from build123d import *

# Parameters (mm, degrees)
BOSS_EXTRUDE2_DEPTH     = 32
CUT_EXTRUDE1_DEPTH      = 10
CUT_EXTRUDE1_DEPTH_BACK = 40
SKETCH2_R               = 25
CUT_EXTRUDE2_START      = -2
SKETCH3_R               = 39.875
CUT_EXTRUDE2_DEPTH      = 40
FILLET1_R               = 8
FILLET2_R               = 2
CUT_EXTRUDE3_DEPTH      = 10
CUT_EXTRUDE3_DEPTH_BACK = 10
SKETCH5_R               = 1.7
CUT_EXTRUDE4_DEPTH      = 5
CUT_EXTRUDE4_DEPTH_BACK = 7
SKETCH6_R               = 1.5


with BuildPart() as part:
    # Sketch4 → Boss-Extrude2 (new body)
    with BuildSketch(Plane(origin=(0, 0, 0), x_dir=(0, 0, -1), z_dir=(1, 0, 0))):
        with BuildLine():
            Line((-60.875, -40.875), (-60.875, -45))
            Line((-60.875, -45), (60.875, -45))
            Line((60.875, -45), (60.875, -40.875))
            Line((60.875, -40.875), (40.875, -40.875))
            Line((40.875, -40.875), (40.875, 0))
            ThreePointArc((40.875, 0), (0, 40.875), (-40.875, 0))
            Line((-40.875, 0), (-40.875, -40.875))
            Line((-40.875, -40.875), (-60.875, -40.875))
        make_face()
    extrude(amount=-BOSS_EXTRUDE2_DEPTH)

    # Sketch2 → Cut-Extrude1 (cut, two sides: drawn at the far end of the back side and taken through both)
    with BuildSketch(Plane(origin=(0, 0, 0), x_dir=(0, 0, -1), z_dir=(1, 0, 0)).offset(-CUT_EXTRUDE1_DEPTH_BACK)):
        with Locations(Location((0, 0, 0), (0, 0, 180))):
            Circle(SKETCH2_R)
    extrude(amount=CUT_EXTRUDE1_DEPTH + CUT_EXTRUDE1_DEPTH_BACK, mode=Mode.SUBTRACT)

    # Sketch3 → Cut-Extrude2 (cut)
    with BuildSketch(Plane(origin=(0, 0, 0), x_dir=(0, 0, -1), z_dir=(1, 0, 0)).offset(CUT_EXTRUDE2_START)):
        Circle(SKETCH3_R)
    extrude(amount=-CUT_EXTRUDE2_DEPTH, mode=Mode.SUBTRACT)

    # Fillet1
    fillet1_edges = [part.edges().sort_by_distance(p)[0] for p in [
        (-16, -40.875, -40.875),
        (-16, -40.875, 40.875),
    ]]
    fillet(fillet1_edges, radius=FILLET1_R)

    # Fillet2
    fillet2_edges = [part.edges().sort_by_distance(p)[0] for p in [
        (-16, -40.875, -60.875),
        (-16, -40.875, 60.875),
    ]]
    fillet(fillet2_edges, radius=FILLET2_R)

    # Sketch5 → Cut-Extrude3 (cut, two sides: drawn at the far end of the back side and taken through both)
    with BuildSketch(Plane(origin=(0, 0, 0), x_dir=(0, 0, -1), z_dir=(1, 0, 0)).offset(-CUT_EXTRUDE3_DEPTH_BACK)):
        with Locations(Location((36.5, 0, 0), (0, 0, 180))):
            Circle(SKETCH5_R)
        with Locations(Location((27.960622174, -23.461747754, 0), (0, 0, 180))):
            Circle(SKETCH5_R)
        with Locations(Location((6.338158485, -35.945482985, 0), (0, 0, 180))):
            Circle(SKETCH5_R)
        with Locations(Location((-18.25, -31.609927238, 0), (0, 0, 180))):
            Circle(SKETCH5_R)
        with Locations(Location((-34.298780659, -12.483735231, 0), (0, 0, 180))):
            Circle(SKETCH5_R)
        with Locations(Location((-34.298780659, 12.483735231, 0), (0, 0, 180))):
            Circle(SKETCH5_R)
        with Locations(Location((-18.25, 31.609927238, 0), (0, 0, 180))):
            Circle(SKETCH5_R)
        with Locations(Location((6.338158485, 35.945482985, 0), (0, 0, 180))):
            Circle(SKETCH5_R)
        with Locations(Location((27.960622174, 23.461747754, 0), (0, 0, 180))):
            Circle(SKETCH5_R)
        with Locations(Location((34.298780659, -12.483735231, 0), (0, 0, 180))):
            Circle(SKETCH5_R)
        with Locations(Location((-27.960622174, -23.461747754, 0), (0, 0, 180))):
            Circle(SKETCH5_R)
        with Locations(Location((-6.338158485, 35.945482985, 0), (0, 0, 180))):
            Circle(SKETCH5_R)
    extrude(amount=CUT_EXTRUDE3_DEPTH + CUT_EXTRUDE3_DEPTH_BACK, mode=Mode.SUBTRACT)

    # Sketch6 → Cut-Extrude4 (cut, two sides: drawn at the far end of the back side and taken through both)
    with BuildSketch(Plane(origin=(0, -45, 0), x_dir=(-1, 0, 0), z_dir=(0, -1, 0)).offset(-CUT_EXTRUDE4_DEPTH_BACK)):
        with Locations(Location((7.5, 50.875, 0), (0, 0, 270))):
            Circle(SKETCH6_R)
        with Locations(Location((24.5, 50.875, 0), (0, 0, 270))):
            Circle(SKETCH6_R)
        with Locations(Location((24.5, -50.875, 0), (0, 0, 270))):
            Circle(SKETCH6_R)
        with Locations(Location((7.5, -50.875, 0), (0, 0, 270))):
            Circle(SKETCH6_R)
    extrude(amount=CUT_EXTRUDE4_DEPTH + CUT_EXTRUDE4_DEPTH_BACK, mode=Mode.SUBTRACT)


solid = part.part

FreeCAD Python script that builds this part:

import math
import FreeCAD as App
import Part
import Sketcher

V = App.Vector
Q = App.Units.Quantity


def edges_at(feature, points):
    """Names of the edges that pass closest to the given points."""
    edges = feature.Shape.Edges
    near = lambda p: min(range(len(edges)), key=lambda i: edges[i].distToShape(Part.Vertex(*p))[0])
    return sorted({f"Edge{near(p) + 1}" for p in points})

doc = App.newDocument("Part")
body = doc.addObject("PartDesign::Body", "Body")

# Sketch on YZ plane
sketch1 = body.newObject("Sketcher::SketchObject", "Sketch")
sketch1.AttachmentSupport = (doc.getObject("YZ_Plane"), [""])
sketch1.MapMode = "FlatFace"
sketch1.addGeometry([
    Part.LineSegment(V(-40.9, 60.9, 0), V(-45, 60.9, 0)),  # 0
    Part.LineSegment(V(-45, 60.9, 0), V(-45, -60.9, 0)),  # 1
    Part.LineSegment(V(-45, -60.9, 0), V(-40.9, -60.9, 0)),  # 2
    Part.LineSegment(V(-40.9, -60.9, 0), V(-40.9, -40.9, 0)),  # 3
    Part.LineSegment(V(-40.9, -40.9, 0), V(0, -40.9, 0)),  # 4
    Part.ArcOfCircle(Part.Circle(V(0, 0, 0), V(0, 0, 1), 40.9), math.radians(-90), math.radians(90)),  # 5
    Part.LineSegment(V(0, 40.9, 0), V(-40.9, 40.9, 0)),  # 6
    Part.LineSegment(V(-40.9, 40.9, 0), V(-40.9, 60.9, 0)),  # 7
], False)
sketch1.addConstraint([
    Sketcher.Constraint("Coincident", 0, 2, 1, 1),
    Sketcher.Constraint("Coincident", 1, 2, 2, 1),
    Sketcher.Constraint("Coincident", 2, 2, 3, 1),
    Sketcher.Constraint("Coincident", 3, 2, 4, 1),
    Sketcher.Constraint("Tangent", 4, 2, 5, 1),
    Sketcher.Constraint("Tangent", 5, 2, 6, 1),
    Sketcher.Constraint("Coincident", 6, 2, 7, 1),
    Sketcher.Constraint("Coincident", 7, 2, 0, 1),
    Sketcher.Constraint("Horizontal", 0),
    Sketcher.Constraint("Vertical", 1),
    Sketcher.Constraint("Horizontal", 2),
    Sketcher.Constraint("Vertical", 3),
    Sketcher.Constraint("Horizontal", 4),
    Sketcher.Constraint("Horizontal", 6),
    Sketcher.Constraint("Vertical", 7),
    Sketcher.Constraint("Coincident", 5, 3, -1, 1),
    Sketcher.Constraint("Symmetric", 2, 2, 7, 2, -1),
    Sketcher.Constraint("DistanceY", 3, 1, 3, 2, Q("20 mm")),
    Sketcher.Constraint("DistanceX", 0, 2, -1, 1, Q("45 mm")),
    Sketcher.Constraint("Radius", 5, Q("40.875 mm")),
    Sketcher.Constraint("DistanceX", 0, 2, 0, 1, Q("4.125 mm")),
])
pad1 = body.newObject("PartDesign::Pad", "Pad")
pad1.Profile = sketch1
pad1.Length = 32
pad1.Reversed = True

# Sketch on YZ plane
sketch2 = body.newObject("Sketcher::SketchObject", "Sketch001")
sketch2.AttachmentSupport = (doc.getObject("YZ_Plane"), [""])
sketch2.MapMode = "FlatFace"
sketch2.addGeometry(Part.Circle(V(0, 0, 0), V(0, 0, 1), 25), False)
sketch2.addConstraint([
    Sketcher.Constraint("Coincident", 0, 3, -1, 1),
    Sketcher.Constraint("Diameter", 0, Q("50 mm")),
])
pocket1 = body.newObject("PartDesign::Pocket", "Pocket")
pocket1.Profile = sketch2
pocket1.Type = "ThroughAll"
pocket1.Midplane = True

# Sketch on YZ plane
sketch3 = body.newObject("Sketcher::SketchObject", "Sketch002")
sketch3.AttachmentSupport = (doc.getObject("YZ_Plane"), [""])
sketch3.MapMode = "FlatFace"
sketch3.AttachmentOffset = App.Placement(V(0, 0, -2), App.Rotation())
sketch3.addGeometry(Part.Circle(V(0, 0, 0), V(0, 0, 1), 40), False)
sketch3.addConstraint([
    Sketcher.Constraint("Coincident", 0, 3, -1, 1),
    Sketcher.Constraint("Diameter", 0, Q("79.75 mm")),
])
pocket2 = body.newObject("PartDesign::Pocket", "Pocket001")
pocket2.Profile = sketch3
pocket2.Length = 40
doc.recompute()

fillet = body.newObject("PartDesign::Fillet", "Fillet")
fillet.Base = (pocket2, edges_at(pocket2, [(-16, -40.875, -40.875), (-16, -40.875, 40.875)]))
fillet.Radius = 8
doc.recompute()

fillet2 = body.newObject("PartDesign::Fillet", "Fillet001")
fillet2.Base = (fillet, edges_at(fillet, [(-16, -40.875, -60.875), (-16, -40.875, 60.875)]))
fillet2.Radius = 2

# Sketch on YZ plane
sketch4 = body.newObject("Sketcher::SketchObject", "Sketch003")
sketch4.AttachmentSupport = (doc.getObject("YZ_Plane"), [""])
sketch4.MapMode = "FlatFace"
sketch4.addGeometry([
    Part.Circle(V(0, -36.5, 0), V(0, 0, 1), 1.7),  # 0
    Part.Circle(V(-23.5, -28, 0), V(0, 0, 1), 1.7),  # 1
    Part.Circle(V(-35.9, -6.3, 0), V(0, 0, 1), 1.7),  # 2
    Part.Circle(V(-31.6, 18.2, 0), V(0, 0, 1), 1.7),  # 3
    Part.Circle(V(-12.5, 34.3, 0), V(0, 0, 1), 1.7),  # 4
    Part.Circle(V(12.5, 34.3, 0), V(0, 0, 1), 1.7),  # 5
    Part.Circle(V(31.6, 18.2, 0), V(0, 0, 1), 1.7),  # 6
    Part.Circle(V(35.9, -6.3, 0), V(0, 0, 1), 1.7),  # 7
    Part.Circle(V(23.5, -28, 0), V(0, 0, 1), 1.7),  # 8
    Part.Circle(V(-12.5, -34.3, 0), V(0, 0, 1), 1.7),  # 9
    Part.Circle(V(-23.5, 28, 0), V(0, 0, 1), 1.7),  # 10
    Part.Circle(V(35.9, 6.3, 0), V(0, 0, 1), 1.7),  # 11
], False)
sketch4.addConstraint([
    Sketcher.Constraint("Equal", 0, 1),
    Sketcher.Constraint("Equal", 1, 2),
    Sketcher.Constraint("Equal", 2, 3),
    Sketcher.Constraint("Equal", 3, 4),
    Sketcher.Constraint("Equal", 4, 5),
    Sketcher.Constraint("Equal", 5, 6),
    Sketcher.Constraint("Equal", 6, 7),
    Sketcher.Constraint("Equal", 7, 8),
    Sketcher.Constraint("Equal", 8, 9),
    Sketcher.Constraint("Equal", 9, 10),
    Sketcher.Constraint("Equal", 10, 11),
    Sketcher.Constraint("Symmetric", 5, 3, 9, 3, -1, 1),
    Sketcher.Constraint("Symmetric", 8, 3, 10, 3, -1, 1),
    Sketcher.Constraint("Symmetric", 2, 3, 11, 3, -1, 1),
    Sketcher.Constraint("Symmetric", 4, 3, 5, 3, -2),
    Sketcher.Constraint("Symmetric", 3, 3, 6, 3, -2),
    Sketcher.Constraint("Symmetric", 2, 3, 7, 3, -2),
    Sketcher.Constraint("Symmetric", 1, 3, 8, 3, -2),
    Sketcher.Constraint("PointOnObject", 0, 3, -2),
    Sketcher.Constraint("Diameter", 0, Q("3.4 mm")),
    Sketcher.Constraint("DistanceY", 0, 3, -1, 1, Q("36.5 mm")),
    Sketcher.Constraint("DistanceY", -1, 1, 3, 3, Q("18.25 mm")),
    Sketcher.Constraint("DistanceY", 2, 3, -1, 1, Q("6.338158 mm")),
    Sketcher.Constraint("DistanceY", -1, 1, 4, 3, Q("34.298781 mm")),
    Sketcher.Constraint("DistanceX", 3, 3, 1, 3, Q("8.148179 mm")),
    Sketcher.Constraint("DistanceX", 4, 3, 5, 3, Q("24.96747 mm")),
    Sketcher.Constraint("DistanceX", 2, 3, 5, 3, Q("48.429218 mm")),
    Sketcher.Constraint("DistanceX", 2, 3, 6, 3, Q("67.55541 mm")),
    Sketcher.Constraint("DistanceY", 9, 3, 1, 3, Q("6.338158 mm")),
])
pocket3 = body.newObject("PartDesign::Pocket", "Pocket002")
pocket3.Profile = sketch4
pocket3.Type = "ThroughAll"
pocket3.Midplane = True

# Sketch on XZ plane
sketch5 = body.newObject("Sketcher::SketchObject", "Sketch004")
sketch5.AttachmentSupport = (doc.getObject("XZ_Plane"), [""])
sketch5.MapMode = "FlatFace"
sketch5.AttachmentOffset = App.Placement(V(0, 0, 45), App.Rotation())
sketch5.addGeometry([
    Part.Circle(V(-7.5, -50.9, 0), V(0, 0, 1), 1.5),
    Part.Circle(V(-24.5, -50.9, 0), V(0, 0, 1), 1.5),
    Part.Circle(V(-24.5, 50.9, 0), V(0, 0, 1), 1.5),
    Part.Circle(V(-7.5, 50.9, 0), V(0, 0, 1), 1.5),
], False)
sketch5.addConstraint([
    Sketcher.Constraint("Equal", 0, 1),
    Sketcher.Constraint("Equal", 1, 2),
    Sketcher.Constraint("Equal", 2, 3),
    Sketcher.Constraint("Symmetric", 1, 3, 2, 3, -1),
    Sketcher.Constraint("Symmetric", 0, 3, 3, 3, -1),
    Sketcher.Constraint("Horizontal", 0, 3, 1, 3),
    Sketcher.Constraint("Diameter", 0, Q("3 mm")),
    Sketcher.Constraint("DistanceX", 1, 3, 0, 3, Q("17 mm")),
    Sketcher.Constraint("DistanceX", 0, 3, -1, 1, Q("7.5 mm")),
    Sketcher.Constraint("DistanceY", 1, 3, 2, 3, Q("101.75 mm")),
])
pocket4 = body.newObject("PartDesign::Pocket", "Pocket003")
pocket4.Profile = sketch5
pocket4.Type = "ThroughAll"
pocket4.Midplane = True

doc.recompute()
